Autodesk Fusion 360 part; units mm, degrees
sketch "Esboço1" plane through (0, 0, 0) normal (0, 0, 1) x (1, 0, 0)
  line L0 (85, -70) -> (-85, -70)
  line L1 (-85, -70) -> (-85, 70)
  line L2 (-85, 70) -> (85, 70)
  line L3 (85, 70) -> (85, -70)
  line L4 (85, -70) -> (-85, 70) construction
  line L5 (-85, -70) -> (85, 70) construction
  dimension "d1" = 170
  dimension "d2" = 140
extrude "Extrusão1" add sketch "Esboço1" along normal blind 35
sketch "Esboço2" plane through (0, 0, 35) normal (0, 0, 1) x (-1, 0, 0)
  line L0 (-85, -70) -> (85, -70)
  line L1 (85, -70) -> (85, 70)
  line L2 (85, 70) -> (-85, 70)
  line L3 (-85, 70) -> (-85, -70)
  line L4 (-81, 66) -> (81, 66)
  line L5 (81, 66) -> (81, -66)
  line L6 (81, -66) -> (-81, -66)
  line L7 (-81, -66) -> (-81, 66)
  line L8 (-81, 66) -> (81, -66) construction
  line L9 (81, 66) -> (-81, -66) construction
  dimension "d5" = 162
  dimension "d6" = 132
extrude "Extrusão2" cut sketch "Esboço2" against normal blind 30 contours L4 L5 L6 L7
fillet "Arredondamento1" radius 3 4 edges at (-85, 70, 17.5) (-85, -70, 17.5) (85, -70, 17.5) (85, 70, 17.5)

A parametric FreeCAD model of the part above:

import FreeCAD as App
import Part
import Sketcher
from FreeCAD import Vector
Q = App.Units.Quantity


def edges_at(feature, points):
    """Names of the edges that pass closest to the given points."""
    edges = feature.Shape.Edges
    near = lambda p: min(range(len(edges)), key=lambda i: edges[i].distToShape(Part.Vertex(*p))[0])
    return sorted({f"Edge{near(p) + 1}" for p in points})

doc = App.newDocument("Part")
body = doc.addObject("PartDesign::Body", "Body")

# Sketch on XY plane
sketch1 = body.newObject("Sketcher::SketchObject", "Sketch")
sketch1.AttachmentSupport = (doc.getObject("XY_Plane"), [""])
sketch1.MapMode = "FlatFace"
sketch1.addGeometry([
    Part.LineSegment(Vector(-85, -70, 0), Vector(85, -70, 0)),
    Part.LineSegment(Vector(85, -70, 0), Vector(85, 70, 0)),
    Part.LineSegment(Vector(85, 70, 0), Vector(-85, 70, 0)),
    Part.LineSegment(Vector(-85, 70, 0), Vector(-85, -70, 0)),
], False)
sketch1.addConstraint([
    Sketcher.Constraint("Coincident", 0, 2, 1, 1),
    Sketcher.Constraint("Coincident", 1, 2, 2, 1),
    Sketcher.Constraint("Coincident", 2, 2, 3, 1),
    Sketcher.Constraint("Coincident", 3, 2, 0, 1),
    Sketcher.Constraint("Horizontal", 0),
    Sketcher.Constraint("Vertical", 1),
    Sketcher.Constraint("Horizontal", 2),
    Sketcher.Constraint("Vertical", 3),
    Sketcher.Constraint("Symmetric", 0, 2, 2, 2, -1, 1),
    Sketcher.Constraint("DistanceX", 0, 1, 0, 2, Q("170 mm")),
    Sketcher.Constraint("DistanceY", 1, 1, 1, 2, Q("140 mm")),
])
pad1 = body.newObject("PartDesign::Pad", "Pad")
pad1.Profile = sketch1
pad1.Length = 35

# Sketch on XY plane
sketch2 = body.newObject("Sketcher::SketchObject", "Sketch001")
sketch2.AttachmentSupport = (doc.getObject("XY_Plane"), [""])
sketch2.MapMode = "FlatFace"
sketch2.AttachmentOffset = App.Placement(Vector(0, 0, 35), App.Rotation())
sketch2.addGeometry([
    Part.LineSegment(Vector(-81, -66, 0), Vector(81, -66, 0)),
    Part.LineSegment(Vector(81, -66, 0), Vector(81, 66, 0)),
    Part.LineSegment(Vector(81, 66, 0), Vector(-81, 66, 0)),
    Part.LineSegment(Vector(-81, 66, 0), Vector(-81, -66, 0)),
], False)
sketch2.addConstraint([
    Sketcher.Constraint("Coincident", 0, 2, 1, 1),
    Sketcher.Constraint("Coincident", 1, 2, 2, 1),
    Sketcher.Constraint("Coincident", 2, 2, 3, 1),
    Sketcher.Constraint("Coincident", 3, 2, 0, 1),
    Sketcher.Constraint("Horizontal", 0),
    Sketcher.Constraint("Vertical", 1),
    Sketcher.Constraint("Horizontal", 2),
    Sketcher.Constraint("Vertical", 3),
    Sketcher.Constraint("Symmetric", 0, 2, 2, 2, -1, 1),
    Sketcher.Constraint("DistanceX", 0, 1, 0, 2, Q("162 mm")),
    Sketcher.Constraint("DistanceY", 1, 1, 1, 2, Q("132 mm")),
])
pocket1 = body.newObject("PartDesign::Pocket", "Pocket")
pocket1.Profile = sketch2
pocket1.Length = 30
doc.recompute()

fillet = body.newObject("PartDesign::Fillet", "Fillet")
fillet.Base = (pocket1, edges_at(pocket1, [
    (-85, 70, 17.5),
    (-85, -70, 17.5),
    (85, -70, 17.5),
    (85, 70, 17.5),
]))
fillet.Radius = 3

doc.recompute()
